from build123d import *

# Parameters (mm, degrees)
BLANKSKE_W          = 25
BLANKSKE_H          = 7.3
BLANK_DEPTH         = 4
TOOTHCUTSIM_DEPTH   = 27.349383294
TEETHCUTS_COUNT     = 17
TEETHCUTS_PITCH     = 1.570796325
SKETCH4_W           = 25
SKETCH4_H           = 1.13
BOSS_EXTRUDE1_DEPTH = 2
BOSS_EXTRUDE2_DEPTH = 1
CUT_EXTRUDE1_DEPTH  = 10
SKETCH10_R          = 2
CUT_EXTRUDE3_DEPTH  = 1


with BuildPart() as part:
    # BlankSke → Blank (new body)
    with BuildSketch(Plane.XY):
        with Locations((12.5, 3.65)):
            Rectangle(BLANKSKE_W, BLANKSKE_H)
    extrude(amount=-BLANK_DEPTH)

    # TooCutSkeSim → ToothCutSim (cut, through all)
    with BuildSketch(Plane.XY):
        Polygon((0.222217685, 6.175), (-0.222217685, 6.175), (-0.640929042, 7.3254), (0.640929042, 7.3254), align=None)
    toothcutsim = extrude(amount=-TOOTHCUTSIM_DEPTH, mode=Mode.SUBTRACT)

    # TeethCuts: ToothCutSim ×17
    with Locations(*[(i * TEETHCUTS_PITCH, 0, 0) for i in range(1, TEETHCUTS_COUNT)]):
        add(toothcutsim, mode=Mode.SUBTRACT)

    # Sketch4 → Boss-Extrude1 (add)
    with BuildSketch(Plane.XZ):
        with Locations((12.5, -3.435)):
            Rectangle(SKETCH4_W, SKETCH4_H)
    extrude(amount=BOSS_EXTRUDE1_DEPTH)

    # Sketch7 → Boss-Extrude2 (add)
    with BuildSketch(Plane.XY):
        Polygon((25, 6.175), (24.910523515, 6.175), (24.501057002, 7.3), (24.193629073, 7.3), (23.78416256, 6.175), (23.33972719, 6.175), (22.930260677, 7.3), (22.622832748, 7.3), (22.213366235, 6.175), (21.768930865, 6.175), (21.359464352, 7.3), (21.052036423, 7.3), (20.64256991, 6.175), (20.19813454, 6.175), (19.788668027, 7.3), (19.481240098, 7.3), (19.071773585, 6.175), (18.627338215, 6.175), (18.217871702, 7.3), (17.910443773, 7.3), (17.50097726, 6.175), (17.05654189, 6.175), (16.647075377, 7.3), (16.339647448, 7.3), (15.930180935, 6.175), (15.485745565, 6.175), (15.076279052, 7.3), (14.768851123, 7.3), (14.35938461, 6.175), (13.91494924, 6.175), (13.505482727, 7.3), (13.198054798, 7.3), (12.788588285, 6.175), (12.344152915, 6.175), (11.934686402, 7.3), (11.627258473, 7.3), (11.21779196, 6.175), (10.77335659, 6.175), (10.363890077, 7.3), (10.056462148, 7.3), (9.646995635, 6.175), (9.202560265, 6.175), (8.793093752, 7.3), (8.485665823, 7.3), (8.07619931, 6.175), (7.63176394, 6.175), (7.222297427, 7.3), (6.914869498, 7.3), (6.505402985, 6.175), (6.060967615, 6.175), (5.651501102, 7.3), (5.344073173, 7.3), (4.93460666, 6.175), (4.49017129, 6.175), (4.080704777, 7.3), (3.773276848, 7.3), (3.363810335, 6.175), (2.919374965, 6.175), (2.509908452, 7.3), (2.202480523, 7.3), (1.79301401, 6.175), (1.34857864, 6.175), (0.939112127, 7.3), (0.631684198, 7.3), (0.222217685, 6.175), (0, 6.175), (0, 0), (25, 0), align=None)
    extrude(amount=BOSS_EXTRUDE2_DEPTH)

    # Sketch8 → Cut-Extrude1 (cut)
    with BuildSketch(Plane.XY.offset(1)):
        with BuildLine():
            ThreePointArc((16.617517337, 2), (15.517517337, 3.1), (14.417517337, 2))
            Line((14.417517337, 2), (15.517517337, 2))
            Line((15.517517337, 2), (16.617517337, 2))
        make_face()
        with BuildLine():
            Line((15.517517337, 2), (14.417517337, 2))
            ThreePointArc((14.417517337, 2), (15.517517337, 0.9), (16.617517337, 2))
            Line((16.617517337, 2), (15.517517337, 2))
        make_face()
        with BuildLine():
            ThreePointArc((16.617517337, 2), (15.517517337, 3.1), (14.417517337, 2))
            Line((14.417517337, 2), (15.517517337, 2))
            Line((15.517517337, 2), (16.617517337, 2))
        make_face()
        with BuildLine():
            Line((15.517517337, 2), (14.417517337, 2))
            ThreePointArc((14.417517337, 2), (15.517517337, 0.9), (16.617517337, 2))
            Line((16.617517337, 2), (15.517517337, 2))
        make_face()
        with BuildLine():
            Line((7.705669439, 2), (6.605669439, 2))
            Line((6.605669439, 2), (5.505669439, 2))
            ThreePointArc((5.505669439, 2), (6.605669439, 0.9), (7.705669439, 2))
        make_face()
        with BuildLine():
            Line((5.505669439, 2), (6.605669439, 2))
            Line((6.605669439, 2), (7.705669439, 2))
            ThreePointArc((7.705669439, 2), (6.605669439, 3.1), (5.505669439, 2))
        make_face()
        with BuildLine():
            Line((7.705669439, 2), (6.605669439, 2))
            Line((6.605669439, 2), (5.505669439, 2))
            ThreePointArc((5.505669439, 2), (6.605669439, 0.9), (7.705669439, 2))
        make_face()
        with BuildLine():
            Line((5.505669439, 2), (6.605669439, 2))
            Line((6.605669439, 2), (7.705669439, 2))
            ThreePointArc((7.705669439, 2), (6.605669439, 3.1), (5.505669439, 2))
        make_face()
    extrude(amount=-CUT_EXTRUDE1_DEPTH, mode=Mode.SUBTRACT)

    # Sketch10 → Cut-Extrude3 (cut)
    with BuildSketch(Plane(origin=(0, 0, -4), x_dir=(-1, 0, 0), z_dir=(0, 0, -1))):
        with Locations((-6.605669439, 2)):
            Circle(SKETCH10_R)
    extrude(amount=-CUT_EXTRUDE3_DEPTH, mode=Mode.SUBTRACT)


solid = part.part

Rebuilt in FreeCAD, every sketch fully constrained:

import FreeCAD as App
import Part
import Sketcher
Q = App.Units.Quantity


def add_polygon(sketch, points):
    """Adds a closed chain of lines whose ends are joined by coincident constraints."""
    first, n = sketch.GeometryCount, len(points)
    for a, b in zip(points, points[1:] + points[:1]):
        sketch.addGeometry(Part.LineSegment(App.Vector(*a, 0), App.Vector(*b, 0)), False)
    for i in range(n):
        sketch.addConstraint(Sketcher.Constraint("Coincident", first + i, 2, first + (i + 1) % n, 1))

doc = App.newDocument("Part")
params = doc.addObject("Spreadsheet::Sheet", "Params")
for row, (alias, value) in enumerate([
    ("sketch1_width", "25 mm"),
    ("sketch1_height", "7.3 mm"),
    ("pad1_length", "4 mm"),
    ("linearpattern_pitch", "1.570796 mm"),
    ("sketch3_width", "25 mm"),
    ("sketch3_height", "1.13 mm"),
    ("pad2_length", "2 mm"),
    ("sketch4_width", "25 mm"),
    ("pad3_length", "1 mm"),
    ("sketch5_diameter", "2.2 mm"),
    ("pocket2_length", "10 mm"),
    ("sketch6_diameter", "4 mm"),
    ("pocket3_length", "1 mm"),
], start=1):
    params.set(f"A{row}", alias)
    params.set(f"B{row}", "=" + value)
    params.setAlias(f"B{row}", alias)

body = doc.addObject("PartDesign::Body", "Body")

# Sketch on XY plane
sketch1 = body.newObject("Sketcher::SketchObject", "Sketch")
sketch1.AttachmentSupport = (doc.getObject("XY_Plane"), [""])
sketch1.MapMode = "FlatFace"
add_polygon(sketch1, [(0, 7), (0, 0), (25, 0), (25, 7)])  # lines 0-3
sketch1.addConstraint([
    Sketcher.Constraint("Vertical", 0),
    Sketcher.Constraint("Horizontal", 1),
    Sketcher.Constraint("Vertical", 2),
    Sketcher.Constraint("Horizontal", 3),
    Sketcher.Constraint("Coincident", 0, 2, -1, 1),
    Sketcher.Constraint("DistanceX", 1, 1, 1, 2, Q("25 mm")),
    Sketcher.Constraint("DistanceY", 0, 2, 0, 1, Q("7.3 mm")),
])
sketch1.setExpression("Constraints[9]", "Params.sketch1_width")
sketch1.setExpression("Constraints[10]", "Params.sketch1_height")
pad1 = body.newObject("PartDesign::Pad", "Pad")
pad1.Profile = sketch1
pad1.setExpression("Length", "Params.pad1_length")
pad1.Reversed = True

# Sketch on XY plane
sketch2 = body.newObject("Sketcher::SketchObject", "Sketch001")
sketch2.AttachmentSupport = (doc.getObject("XY_Plane"), [""])
sketch2.MapMode = "FlatFace"
add_polygon(sketch2, [(-0.22, 6.17), (0.22, 6.17), (0.64, 7.33), (-0.64, 7.33)])  # lines 0-3
sketch2.addConstraint([
    Sketcher.Constraint("Horizontal", 0),
    Sketcher.Constraint("Horizontal", 2),
    Sketcher.Constraint("Equal", 1, 3),
    Sketcher.Constraint("Angle", 1, Q("70 deg")),
    Sketcher.Constraint("DistanceY", -1, 1, 0, 2, Q("6.175 mm")),
    Sketcher.Constraint("DistanceX", 2, 2, 2, 1, Q("1.281858 mm")),
    Sketcher.Constraint("DistanceY", -1, 1, 1, 2, Q("7.3254 mm")),
    Sketcher.Constraint("DistanceX", -1, 1, 1, 2, Q("0.640929 mm")),
])
pocket1 = body.newObject("PartDesign::Pocket", "Pocket")
pocket1.Profile = sketch2
pocket1.Type = "ThroughAll"
doc.recompute()

linearpattern = body.newObject("PartDesign::LinearPattern", "LinearPattern")
linearpattern.Originals = [pocket1]
linearpattern.Direction = (doc.getObject("X_Axis"), [""])
linearpattern.Mode = "offset"
linearpattern.setExpression("Offset", "Params.linearpattern_pitch")
linearpattern.Occurrences = 17
body.Tip = linearpattern

# Sketch on XZ plane
sketch3 = body.newObject("Sketcher::SketchObject", "Sketch002")
sketch3.AttachmentSupport = (doc.getObject("XZ_Plane"), [""])
sketch3.MapMode = "FlatFace"
add_polygon(sketch3, [(0, -2.9), (0, -4), (25, -4), (25, -2.9)])  # lines 0-3
sketch3.addConstraint([
    Sketcher.Constraint("Vertical", 0),
    Sketcher.Constraint("Horizontal", 1),
    Sketcher.Constraint("Vertical", 2),
    Sketcher.Constraint("Horizontal", 3),
    Sketcher.Constraint("PointOnObject", 0, 2, -2),
    Sketcher.Constraint("DistanceX", 1, 1, 1, 2, Q("25 mm")),
    Sketcher.Constraint("DistanceY", 0, 2, -1, 1, Q("4 mm")),
    Sketcher.Constraint("DistanceY", 0, 2, 0, 1, Q("1.13 mm")),
])
sketch3.setExpression("Constraints[9]", "Params.sketch3_width")
sketch3.setExpression("Constraints[11]", "Params.sketch3_height")
pad2 = body.newObject("PartDesign::Pad", "Pad001")
pad2.Profile = sketch3
pad2.setExpression("Length", "Params.pad2_length")

# Sketch on XY plane
sketch4 = body.newObject("Sketcher::SketchObject", "Sketch003")
sketch4.AttachmentSupport = (doc.getObject("XY_Plane"), [""])
sketch4.MapMode = "FlatFace"
add_polygon(sketch4, [(25, 6.17), (24.91, 6.17), (24.5, 7.3), (24.19, 7.3), (23.78, 6.17), (23.34, 6.17), (22.93, 7.3), (22.62, 7.3), (22.21, 6.17), (21.77, 6.17), (21.36, 7.3), (21.05, 7.3), (20.64, 6.17), (20.2, 6.17), (19.79, 7.3), (19.48, 7.3), (19.07, 6.17), (18.63, 6.17), (18.22, 7.3), (17.91, 7.3), (17.5, 6.17), (17.06, 6.17), (16.65, 7.3), (16.34, 7.3), (15.93, 6.17), (15.49, 6.17), (15.08, 7.3), (14.77, 7.3), (14.36, 6.17), (13.91, 6.17), (13.51, 7.3), (13.2, 7.3), (12.79, 6.17), (12.34, 6.17), (11.93, 7.3), (11.63, 7.3), (11.22, 6.17), (10.77, 6.17), (10.36, 7.3), (10.06, 7.3), (9.65, 6.17), (9.2, 6.17), (8.79, 7.3), (8.49, 7.3), (8.08, 6.17), (7.63, 6.17), (7.22, 7.3), (6.91, 7.3), (6.51, 6.17), (6.06, 6.17), (5.65, 7.3), (5.34, 7.3), (4.93, 6.17), (4.49, 6.17), (4.08, 7.3), (3.77, 7.3), (3.36, 6.17), (2.92, 6.17), (2.51, 7.3), (2.2, 7.3), (1.79, 6.17), (1.35, 6.17), (0.94, 7.3), (0.63, 7.3), (0.22, 6.17), (0, 6.17), (0, 0), (25, 0)])  # lines 0-67
sketch4.addConstraint([
    Sketcher.Constraint("Horizontal", 0),
    Sketcher.Constraint("Horizontal", 2),
    Sketcher.Constraint("Horizontal", 4),
    Sketcher.Constraint("Horizontal", 6),
    Sketcher.Constraint("Horizontal", 8),
    Sketcher.Constraint("Horizontal", 10),
    Sketcher.Constraint("Horizontal", 12),
    Sketcher.Constraint("Horizontal", 14),
    Sketcher.Constraint("Horizontal", 16),
    Sketcher.Constraint("Horizontal", 18),
    Sketcher.Constraint("Horizontal", 20),
    Sketcher.Constraint("Horizontal", 22),
    Sketcher.Constraint("Horizontal", 24),
    Sketcher.Constraint("Horizontal", 26),
    Sketcher.Constraint("Horizontal", 28),
    Sketcher.Constraint("Horizontal", 30),
    Sketcher.Constraint("Horizontal", 32),
    Sketcher.Constraint("Horizontal", 34),
    Sketcher.Constraint("Horizontal", 36),
    Sketcher.Constraint("Horizontal", 38),
    Sketcher.Constraint("Horizontal", 40),
    Sketcher.Constraint("Horizontal", 42),
    Sketcher.Constraint("Horizontal", 44),
    Sketcher.Constraint("Horizontal", 46),
    Sketcher.Constraint("Horizontal", 48),
    Sketcher.Constraint("Horizontal", 50),
    Sketcher.Constraint("Horizontal", 52),
    Sketcher.Constraint("Horizontal", 54),
    Sketcher.Constraint("Horizontal", 56),
    Sketcher.Constraint("Horizontal", 58),
    Sketcher.Constraint("Horizontal", 60),
    Sketcher.Constraint("Horizontal", 62),
    Sketcher.Constraint("Horizontal", 64),
    Sketcher.Constraint("Vertical", 65),
    Sketcher.Constraint("Horizontal", 66),
    Sketcher.Constraint("Vertical", 67),
    Sketcher.Constraint("Coincident", 65, 2, -1, 1),
    Sketcher.Constraint("Parallel", 1, 5),
    Sketcher.Constraint("Parallel", 3, 7),
    Sketcher.Constraint("Parallel", 5, 9),
    Sketcher.Constraint("Parallel", 7, 11),
    Sketcher.Constraint("Parallel", 9, 13),
    Sketcher.Constraint("Parallel", 11, 15),
    Sketcher.Constraint("Parallel", 13, 17),
    Sketcher.Constraint("Parallel", 15, 19),
    Sketcher.Constraint("Parallel", 17, 21),
    Sketcher.Constraint("Parallel", 19, 23),
    Sketcher.Constraint("Parallel", 21, 25),
    Sketcher.Constraint("Parallel", 23, 27),
    Sketcher.Constraint("Parallel", 25, 29),
    Sketcher.Constraint("Parallel", 27, 31),
    Sketcher.Constraint("Parallel", 29, 33),
    Sketcher.Constraint("Parallel", 31, 35),
    Sketcher.Constraint("Parallel", 33, 37),
    Sketcher.Constraint("Parallel", 35, 39),
    Sketcher.Constraint("Parallel", 37, 41),
    Sketcher.Constraint("Parallel", 39, 43),
    Sketcher.Constraint("Parallel", 41, 45),
    Sketcher.Constraint("Parallel", 43, 47),
    Sketcher.Constraint("Parallel", 45, 49),
    Sketcher.Constraint("Parallel", 47, 51),
    Sketcher.Constraint("Parallel", 49, 53),
    Sketcher.Constraint("Parallel", 51, 55),
    Sketcher.Constraint("Parallel", 53, 57),
    Sketcher.Constraint("Parallel", 55, 59),
    Sketcher.Constraint("Parallel", 57, 61),
    Sketcher.Constraint("Parallel", 59, 63),
    Sketcher.Constraint("Horizontal", 0, 2, 3, 2),
    Sketcher.Constraint("Horizontal", 2, 2, 5, 2),
    Sketcher.Constraint("Horizontal", 4, 2, 7, 2),
    Sketcher.Constraint("Horizontal", 6, 2, 9, 2),
    Sketcher.Constraint("Horizontal", 8, 2, 11, 2),
    Sketcher.Constraint("Horizontal", 10, 2, 13, 2),
    Sketcher.Constraint("Horizontal", 12, 2, 15, 2),
    Sketcher.Constraint("Horizontal", 14, 2, 17, 2),
    Sketcher.Constraint("Horizontal", 16, 2, 19, 2),
    Sketcher.Constraint("Horizontal", 18, 2, 21, 2),
    Sketcher.Constraint("Horizontal", 20, 2, 23, 2),
    Sketcher.Constraint("Horizontal", 22, 2, 25, 2),
    Sketcher.Constraint("Horizontal", 24, 2, 27, 2),
    Sketcher.Constraint("Horizontal", 26, 2, 29, 2),
    Sketcher.Constraint("Horizontal", 28, 2, 31, 2),
    Sketcher.Constraint("Horizontal", 30, 2, 33, 2),
    Sketcher.Constraint("Horizontal", 32, 2, 35, 2),
    Sketcher.Constraint("Horizontal", 34, 2, 37, 2),
    Sketcher.Constraint("Horizontal", 36, 2, 39, 2),
    Sketcher.Constraint("Horizontal", 38, 2, 41, 2),
    Sketcher.Constraint("Horizontal", 40, 2, 43, 2),
    Sketcher.Constraint("Horizontal", 42, 2, 45, 2),
    Sketcher.Constraint("Horizontal", 44, 2, 47, 2),
    Sketcher.Constraint("Horizontal", 46, 2, 49, 2),
    Sketcher.Constraint("Horizontal", 48, 2, 51, 2),
    Sketcher.Constraint("Horizontal", 50, 2, 53, 2),
    Sketcher.Constraint("Horizontal", 52, 2, 55, 2),
    Sketcher.Constraint("Horizontal", 54, 2, 57, 2),
    Sketcher.Constraint("Horizontal", 56, 2, 59, 2),
    Sketcher.Constraint("Horizontal", 58, 2, 61, 2),
    Sketcher.Constraint("Horizontal", 60, 2, 63, 2),
    Sketcher.Constraint("Equal", 2, 6),
    Sketcher.Constraint("Equal", 4, 8),
    Sketcher.Constraint("Equal", 6, 10),
    Sketcher.Constraint("Equal", 8, 12),
    Sketcher.Constraint("Equal", 10, 14),
    Sketcher.Constraint("Equal", 12, 16),
    Sketcher.Constraint("Equal", 14, 18),
    Sketcher.Constraint("Equal", 16, 20),
    Sketcher.Constraint("Equal", 18, 22),
    Sketcher.Constraint("Equal", 20, 24),
    Sketcher.Constraint("Equal", 22, 26),
    Sketcher.Constraint("Equal", 24, 28),
    Sketcher.Constraint("Equal", 26, 30),
    Sketcher.Constraint("Equal", 28, 32),
    Sketcher.Constraint("Equal", 30, 34),
    Sketcher.Constraint("Equal", 32, 36),
    Sketcher.Constraint("Equal", 34, 38),
    Sketcher.Constraint("Equal", 36, 40),
    Sketcher.Constraint("Equal", 38, 42),
    Sketcher.Constraint("Equal", 40, 44),
    Sketcher.Constraint("Equal", 42, 46),
    Sketcher.Constraint("Equal", 44, 48),
    Sketcher.Constraint("Equal", 46, 50),
    Sketcher.Constraint("Equal", 48, 52),
    Sketcher.Constraint("Equal", 50, 54),
    Sketcher.Constraint("Equal", 52, 56),
    Sketcher.Constraint("Equal", 54, 58),
    Sketcher.Constraint("Equal", 56, 60),
    Sketcher.Constraint("Equal", 58, 62),
    Sketcher.Constraint("Equal", 1, 3),
    Sketcher.Constraint("DistanceX", 66, 1, 66, 2, Q("25 mm")),
    Sketcher.Constraint("Angle", 1, Q("110 deg")),
    Sketcher.Constraint("DistanceY", -1, 1, 1, 2, Q("7.3 mm")),
    Sketcher.Constraint("DistanceY", 65, 2, 65, 1, Q("6.175 mm")),
    Sketcher.Constraint("DistanceX", -1, 1, 43, 2, Q("8.076199 mm")),
    Sketcher.Constraint("DistanceX", -1, 1, 49, 2, Q("5.651501 mm")),
    Sketcher.Constraint("DistanceX", 0, 2, 0, 1, Q("0.089476 mm")),
])
sketch4.setExpression("Constraints[196]", "Params.sketch4_width")
pad3 = body.newObject("PartDesign::Pad", "Pad002")
pad3.Profile = sketch4
pad3.setExpression("Length", "Params.pad3_length")

# Sketch on XY plane
sketch5 = body.newObject("Sketcher::SketchObject", "Sketch004")
sketch5.AttachmentSupport = (doc.getObject("XY_Plane"), [""])
sketch5.MapMode = "FlatFace"
sketch5.AttachmentOffset = App.Placement(App.Vector(0, 0, 1), App.Rotation())
sketch5.addGeometry([
    Part.Circle(App.Vector(15.5, 2, 0), App.Vector(0, 0, 1), 1.1),
    Part.Circle(App.Vector(6.6, 2, 0), App.Vector(0, 0, 1), 1.1),
], False)
sketch5.addConstraint([
    Sketcher.Constraint("Equal", 0, 1),
    Sketcher.Constraint("Horizontal", 0, 3, 1, 3),
    Sketcher.Constraint("Diameter", 0, Q("2.2 mm")),
    Sketcher.Constraint("DistanceY", -1, 1, 0, 3, Q("2 mm")),
    Sketcher.Constraint("DistanceX", -1, 1, 1, 3, Q("6.605669 mm")),
    Sketcher.Constraint("DistanceX", -1, 1, 0, 3, Q("15.517517 mm")),
])
sketch5.setExpression("Constraints[2]", "Params.sketch5_diameter")
pocket2 = body.newObject("PartDesign::Pocket", "Pocket001")
pocket2.Profile = sketch5
pocket2.setExpression("Length", "Params.pocket2_length")

# Sketch on XY plane
sketch6 = body.newObject("Sketcher::SketchObject", "Sketch005")
sketch6.AttachmentSupport = (doc.getObject("XY_Plane"), [""])
sketch6.MapMode = "FlatFace"
sketch6.AttachmentOffset = App.Placement(App.Vector(0, 0, -4), App.Rotation())
sketch6.addGeometry(Part.Circle(App.Vector(6.6, 2, 0), App.Vector(0, 0, 1), 2), False)
sketch6.addConstraint([
    Sketcher.Constraint("Diameter", 0, Q("4 mm")),
    Sketcher.Constraint("DistanceY", -1, 1, 0, 3, Q("2 mm")),
    Sketcher.Constraint("DistanceX", -1, 1, 0, 3, Q("6.605669 mm")),
])
sketch6.setExpression("Constraints[0]", "Params.sketch6_diameter")
pocket3 = body.newObject("PartDesign::Pocket", "Pocket002")
pocket3.Profile = sketch6
pocket3.setExpression("Length", "Params.pocket3_length")
pocket3.Reversed = True

doc.recompute()
